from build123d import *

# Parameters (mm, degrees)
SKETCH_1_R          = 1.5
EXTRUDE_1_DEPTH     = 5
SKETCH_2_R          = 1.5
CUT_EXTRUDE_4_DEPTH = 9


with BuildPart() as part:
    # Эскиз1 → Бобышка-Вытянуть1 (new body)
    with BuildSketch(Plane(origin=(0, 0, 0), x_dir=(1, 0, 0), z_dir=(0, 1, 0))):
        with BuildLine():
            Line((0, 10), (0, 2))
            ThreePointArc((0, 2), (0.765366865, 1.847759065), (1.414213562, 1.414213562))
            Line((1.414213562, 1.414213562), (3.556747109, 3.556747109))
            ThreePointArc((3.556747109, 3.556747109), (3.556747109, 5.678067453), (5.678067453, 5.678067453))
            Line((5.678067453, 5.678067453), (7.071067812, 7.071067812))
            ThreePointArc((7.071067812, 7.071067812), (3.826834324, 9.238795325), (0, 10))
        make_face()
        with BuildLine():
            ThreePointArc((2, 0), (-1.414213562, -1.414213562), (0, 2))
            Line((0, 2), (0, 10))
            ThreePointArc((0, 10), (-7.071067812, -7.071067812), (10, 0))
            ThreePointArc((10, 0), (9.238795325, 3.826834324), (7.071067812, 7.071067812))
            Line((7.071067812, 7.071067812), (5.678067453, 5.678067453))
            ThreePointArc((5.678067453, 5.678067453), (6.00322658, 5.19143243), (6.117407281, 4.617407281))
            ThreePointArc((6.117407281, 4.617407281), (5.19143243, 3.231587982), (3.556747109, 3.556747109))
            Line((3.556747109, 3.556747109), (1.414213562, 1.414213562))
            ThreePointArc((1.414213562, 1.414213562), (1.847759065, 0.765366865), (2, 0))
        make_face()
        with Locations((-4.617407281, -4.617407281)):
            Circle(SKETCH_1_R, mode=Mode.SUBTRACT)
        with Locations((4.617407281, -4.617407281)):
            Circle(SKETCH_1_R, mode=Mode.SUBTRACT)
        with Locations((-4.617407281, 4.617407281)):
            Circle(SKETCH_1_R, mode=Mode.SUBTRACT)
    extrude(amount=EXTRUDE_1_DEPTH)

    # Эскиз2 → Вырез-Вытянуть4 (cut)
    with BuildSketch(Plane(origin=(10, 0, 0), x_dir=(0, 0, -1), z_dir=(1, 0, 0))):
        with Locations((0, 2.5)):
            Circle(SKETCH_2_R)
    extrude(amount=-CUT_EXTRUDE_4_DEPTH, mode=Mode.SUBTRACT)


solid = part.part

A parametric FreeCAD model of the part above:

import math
import FreeCAD as App
import Part
import Sketcher
from FreeCAD import Vector
Q = App.Units.Quantity

doc = App.newDocument("Part")
body = doc.addObject("PartDesign::Body", "Body")

sketch1 = doc.addObject("Sketcher::SketchObject", "Sketch")
body.addObject(sketch1)
sketch1.AttachmentSupport = (doc.XZ_Plane, [""])
sketch1.MapMode = "FlatFace"
sketch1.addGeometry(Part.ArcOfCircle(Part.Circle(Vector(0, 0, 0), Vector(0, 0, 1), 10), math.radians(-90), math.radians(-45)), False)
sketch1.addGeometry(Part.ArcOfCircle(Part.Circle(Vector(0, 0, 0), Vector(0, 0, 1), 10), math.radians(0), math.radians(270)), False)
sketch1.addGeometry(Part.ArcOfCircle(Part.Circle(Vector(0, 0, 0), Vector(0, 0, 1), 10), math.radians(-45), math.radians(0)), False)
sketch1.addGeometry(Part.Circle(Vector(-4.6, 4.6, 0), Vector(0, 0, 1), 1.5), False)
sketch1.addGeometry(Part.Circle(Vector(4.6, 4.6, 0), Vector(0, 0, 1), 1.5), False)
sketch1.addGeometry(Part.Circle(Vector(-4.6, -4.6, 0), Vector(0, 0, 1), 1.5), False)
sketch1.addGeometry(Part.ArcOfCircle(Part.Circle(Vector(0, 0, 0), Vector(0, 0, 1), 2), math.radians(-90), math.radians(-45)), False)
sketch1.addGeometry(Part.ArcOfCircle(Part.Circle(Vector(0, 0, 0), Vector(0, 0, 1), 2), math.radians(-45), math.radians(0)), False)
sketch1.addGeometry(Part.ArcOfCircle(Part.Circle(Vector(0, 0, 0), Vector(0, 0, 1), 2), math.radians(0), math.radians(270)), False)
sketch1.addGeometry(Part.ArcOfCircle(Part.Circle(Vector(4.6, -4.6, 0), Vector(0, 0, 1), 1.5), math.radians(135), math.radians(315)), False)
sketch1.addGeometry(Part.ArcOfCircle(Part.Circle(Vector(4.6, -4.6, 0), Vector(0, 0, 1), 1.5), math.radians(-45), math.radians(0)), False)
sketch1.addGeometry(Part.ArcOfCircle(Part.Circle(Vector(4.6, -4.6, 0), Vector(0, 0, 1), 1.5), math.radians(0), math.radians(135)), False)
sketch1.addConstraint(Sketcher.Constraint("Tangent", 0, 1, 1, 2))
sketch1.addConstraint(Sketcher.Constraint("Tangent", 1, 1, 2, 2))
sketch1.addConstraint(Sketcher.Constraint("Tangent", 2, 1, 0, 2))
sketch1.addConstraint(Sketcher.Constraint("Tangent", 6, 2, 7, 1))
sketch1.addConstraint(Sketcher.Constraint("Tangent", 7, 2, 8, 1))
sketch1.addConstraint(Sketcher.Constraint("Tangent", 8, 2, 6, 1))
sketch1.addConstraint(Sketcher.Constraint("Tangent", 9, 2, 10, 1))
sketch1.addConstraint(Sketcher.Constraint("Tangent", 10, 2, 11, 1))
sketch1.addConstraint(Sketcher.Constraint("Tangent", 11, 2, 9, 1))
sketch1.addConstraint(Sketcher.Constraint("Coincident", 0, 3, -1, 1))
sketch1.addConstraint(Sketcher.Constraint("Coincident", 6, 3, -1, 1))
sketch1.addConstraint(Sketcher.Constraint("Equal", 3, 4))
sketch1.addConstraint(Sketcher.Constraint("Equal", 4, 5))
sketch1.addConstraint(Sketcher.Constraint("Equal", 5, 9))
sketch1.addConstraint(Sketcher.Constraint("Symmetric", 4, 3, 5, 3, -1, 1))
sketch1.addConstraint(Sketcher.Constraint("Symmetric", 3, 3, 9, 3, -1, 1))
sketch1.addConstraint(Sketcher.Constraint("Symmetric", 3, 3, 4, 3, -2))
sketch1.addConstraint(Sketcher.Constraint("PointOnObject", 0, 1, -2))
sketch1.addConstraint(Sketcher.Constraint("PointOnObject", 1, 1, -1))
sketch1.addConstraint(Sketcher.Constraint("PointOnObject", 7, 2, -1))
sketch1.addConstraint(Sketcher.Constraint("PointOnObject", 8, 2, -2))
sketch1.addConstraint(Sketcher.Constraint("Horizontal", 11, 3, 10, 2))
sketch1.addConstraint(Sketcher.Constraint("Diameter", 3, Q("3 mm")))
sketch1.addConstraint(Sketcher.Constraint("Radius", 0, Q("10 mm")))
sketch1.addConstraint(Sketcher.Constraint("Radius", 6, Q("2 mm")))
sketch1.addConstraint(Sketcher.Constraint("DistanceX", 9, 2, 2, 1, Q("1.393 mm")))
sketch1.addConstraint(Sketcher.Constraint("DistanceY", 2, 1, 9, 2, Q("1.393 mm")))
sketch1.addConstraint(Sketcher.Constraint("DistanceX", 10, 3, 2, 1, Q("2.453661 mm")))
sketch1.addConstraint(Sketcher.Constraint("DistanceX", 11, 2, 9, 3, Q("1.06066 mm")))
sketch1.addConstraint(Sketcher.Constraint("DistanceX", 3, 3, -1, 1, Q("4.617407 mm")))
sketch1.addConstraint(Sketcher.Constraint("DistanceX", -1, 1, 6, 2, Q("1.414214 mm")))
pad1 = doc.addObject("PartDesign::Pad", "Pad")
body.addObject(pad1)
pad1.Profile = sketch1
pad1.Length = 5
pad1.Reversed = True

sketch2 = doc.addObject("Sketcher::SketchObject", "Sketch001")
body.addObject(sketch2)
sketch2.AttachmentSupport = (doc.YZ_Plane, [""])
sketch2.MapMode = "FlatFace"
sketch2.AttachmentOffset = App.Placement(Vector(0, 0, 10), App.Rotation())
sketch2.addGeometry(Part.Circle(Vector(2.5, 0, 0), Vector(0, 0, 1), 1.5), False)
sketch2.addConstraint(Sketcher.Constraint("PointOnObject", 0, 3, -1))
sketch2.addConstraint(Sketcher.Constraint("Diameter", 0, Q("3 mm")))
sketch2.addConstraint(Sketcher.Constraint("DistanceX", -1, 1, 0, 3, Q("2.5 mm")))
pocket1 = doc.addObject("PartDesign::Pocket", "Pocket")
body.addObject(pocket1)
pocket1.Profile = sketch2
pocket1.Length = 9

doc.recompute()
